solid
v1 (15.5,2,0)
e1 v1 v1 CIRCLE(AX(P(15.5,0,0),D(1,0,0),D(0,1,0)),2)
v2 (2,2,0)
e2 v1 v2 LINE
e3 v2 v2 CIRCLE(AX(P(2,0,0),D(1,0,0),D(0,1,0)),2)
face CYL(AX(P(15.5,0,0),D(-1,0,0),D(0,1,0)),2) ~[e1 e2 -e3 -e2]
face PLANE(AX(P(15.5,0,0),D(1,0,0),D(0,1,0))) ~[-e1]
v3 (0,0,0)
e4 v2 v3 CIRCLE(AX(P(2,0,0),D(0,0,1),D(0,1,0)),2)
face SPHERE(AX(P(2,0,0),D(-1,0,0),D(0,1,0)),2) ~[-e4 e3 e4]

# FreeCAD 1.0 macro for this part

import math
import FreeCAD as App
import Part
import Sketcher
from FreeCAD import Vector

doc = App.newDocument("Part")
params = doc.addObject("Spreadsheet::Sheet", "Params")
for row, (alias, value) in enumerate([
    ("sketch1_radius", "2 mm"),
    ("sketch1_width", "15.5 mm"),
    ("revolution_angle", "360 deg"),
], start=1):
    params.set(f"A{row}", alias)
    params.set(f"B{row}", "=" + value)
    params.setAlias(f"B{row}", alias)

body = doc.addObject("PartDesign::Body", "Body")

sketch1 = body.newObject("Sketcher::SketchObject", "Sketch")
sketch1.AttachmentSupport = (doc.getObject("XY_Plane"), [""])
sketch1.MapMode = "FlatFace"
sketch1.addGeometry(Part.ArcOfCircle(Part.Circle(Vector(2, 0, 0), Vector(0, 0, 1), 2), math.radians(90), math.radians(180)), False)
sketch1.addGeometry(Part.LineSegment(Vector(0, 0, 0), Vector(15.5, 0, 0)), False)
sketch1.addGeometry(Part.LineSegment(Vector(15.5, 0, 0), Vector(15.5, 2, 0)), False)
sketch1.addGeometry(Part.LineSegment(Vector(15.5, 2, 0), Vector(2, 2, 0)), False)
sketch1.addConstraint(Sketcher.Constraint("Coincident", 0, 2, 1, 1))
sketch1.addConstraint(Sketcher.Constraint("Coincident", 1, 2, 2, 1))
sketch1.addConstraint(Sketcher.Constraint("Coincident", 2, 2, 3, 1))
sketch1.addConstraint(Sketcher.Constraint("Tangent", 3, 2, 0, 1))
sketch1.addConstraint(Sketcher.Constraint("Horizontal", 1))
sketch1.addConstraint(Sketcher.Constraint("Vertical", 2))
sketch1.addConstraint(Sketcher.Constraint("Horizontal", 3))
sketch1.addConstraint(Sketcher.Constraint("Coincident", 0, 2, -1, 1))
sketch1.addConstraint(Sketcher.Constraint("PointOnObject", 0, 3, -1))
sketch1.addConstraint(Sketcher.Constraint("Radius", 0, 2.0))
sketch1.addConstraint(Sketcher.Constraint("DistanceX", 1, 1, 1, 2, 15.5))
sketch1.setExpression("Constraints[9]", "Params.sketch1_radius")
sketch1.setExpression("Constraints[10]", "Params.sketch1_width")
revolution = body.newObject("PartDesign::Revolution", "Revolution")
revolution.Profile = sketch1
revolution.ReferenceAxis = (sketch1, ["H_Axis"])
revolution.setExpression("Angle", "Params.revolution_angle")

doc.recompute()
